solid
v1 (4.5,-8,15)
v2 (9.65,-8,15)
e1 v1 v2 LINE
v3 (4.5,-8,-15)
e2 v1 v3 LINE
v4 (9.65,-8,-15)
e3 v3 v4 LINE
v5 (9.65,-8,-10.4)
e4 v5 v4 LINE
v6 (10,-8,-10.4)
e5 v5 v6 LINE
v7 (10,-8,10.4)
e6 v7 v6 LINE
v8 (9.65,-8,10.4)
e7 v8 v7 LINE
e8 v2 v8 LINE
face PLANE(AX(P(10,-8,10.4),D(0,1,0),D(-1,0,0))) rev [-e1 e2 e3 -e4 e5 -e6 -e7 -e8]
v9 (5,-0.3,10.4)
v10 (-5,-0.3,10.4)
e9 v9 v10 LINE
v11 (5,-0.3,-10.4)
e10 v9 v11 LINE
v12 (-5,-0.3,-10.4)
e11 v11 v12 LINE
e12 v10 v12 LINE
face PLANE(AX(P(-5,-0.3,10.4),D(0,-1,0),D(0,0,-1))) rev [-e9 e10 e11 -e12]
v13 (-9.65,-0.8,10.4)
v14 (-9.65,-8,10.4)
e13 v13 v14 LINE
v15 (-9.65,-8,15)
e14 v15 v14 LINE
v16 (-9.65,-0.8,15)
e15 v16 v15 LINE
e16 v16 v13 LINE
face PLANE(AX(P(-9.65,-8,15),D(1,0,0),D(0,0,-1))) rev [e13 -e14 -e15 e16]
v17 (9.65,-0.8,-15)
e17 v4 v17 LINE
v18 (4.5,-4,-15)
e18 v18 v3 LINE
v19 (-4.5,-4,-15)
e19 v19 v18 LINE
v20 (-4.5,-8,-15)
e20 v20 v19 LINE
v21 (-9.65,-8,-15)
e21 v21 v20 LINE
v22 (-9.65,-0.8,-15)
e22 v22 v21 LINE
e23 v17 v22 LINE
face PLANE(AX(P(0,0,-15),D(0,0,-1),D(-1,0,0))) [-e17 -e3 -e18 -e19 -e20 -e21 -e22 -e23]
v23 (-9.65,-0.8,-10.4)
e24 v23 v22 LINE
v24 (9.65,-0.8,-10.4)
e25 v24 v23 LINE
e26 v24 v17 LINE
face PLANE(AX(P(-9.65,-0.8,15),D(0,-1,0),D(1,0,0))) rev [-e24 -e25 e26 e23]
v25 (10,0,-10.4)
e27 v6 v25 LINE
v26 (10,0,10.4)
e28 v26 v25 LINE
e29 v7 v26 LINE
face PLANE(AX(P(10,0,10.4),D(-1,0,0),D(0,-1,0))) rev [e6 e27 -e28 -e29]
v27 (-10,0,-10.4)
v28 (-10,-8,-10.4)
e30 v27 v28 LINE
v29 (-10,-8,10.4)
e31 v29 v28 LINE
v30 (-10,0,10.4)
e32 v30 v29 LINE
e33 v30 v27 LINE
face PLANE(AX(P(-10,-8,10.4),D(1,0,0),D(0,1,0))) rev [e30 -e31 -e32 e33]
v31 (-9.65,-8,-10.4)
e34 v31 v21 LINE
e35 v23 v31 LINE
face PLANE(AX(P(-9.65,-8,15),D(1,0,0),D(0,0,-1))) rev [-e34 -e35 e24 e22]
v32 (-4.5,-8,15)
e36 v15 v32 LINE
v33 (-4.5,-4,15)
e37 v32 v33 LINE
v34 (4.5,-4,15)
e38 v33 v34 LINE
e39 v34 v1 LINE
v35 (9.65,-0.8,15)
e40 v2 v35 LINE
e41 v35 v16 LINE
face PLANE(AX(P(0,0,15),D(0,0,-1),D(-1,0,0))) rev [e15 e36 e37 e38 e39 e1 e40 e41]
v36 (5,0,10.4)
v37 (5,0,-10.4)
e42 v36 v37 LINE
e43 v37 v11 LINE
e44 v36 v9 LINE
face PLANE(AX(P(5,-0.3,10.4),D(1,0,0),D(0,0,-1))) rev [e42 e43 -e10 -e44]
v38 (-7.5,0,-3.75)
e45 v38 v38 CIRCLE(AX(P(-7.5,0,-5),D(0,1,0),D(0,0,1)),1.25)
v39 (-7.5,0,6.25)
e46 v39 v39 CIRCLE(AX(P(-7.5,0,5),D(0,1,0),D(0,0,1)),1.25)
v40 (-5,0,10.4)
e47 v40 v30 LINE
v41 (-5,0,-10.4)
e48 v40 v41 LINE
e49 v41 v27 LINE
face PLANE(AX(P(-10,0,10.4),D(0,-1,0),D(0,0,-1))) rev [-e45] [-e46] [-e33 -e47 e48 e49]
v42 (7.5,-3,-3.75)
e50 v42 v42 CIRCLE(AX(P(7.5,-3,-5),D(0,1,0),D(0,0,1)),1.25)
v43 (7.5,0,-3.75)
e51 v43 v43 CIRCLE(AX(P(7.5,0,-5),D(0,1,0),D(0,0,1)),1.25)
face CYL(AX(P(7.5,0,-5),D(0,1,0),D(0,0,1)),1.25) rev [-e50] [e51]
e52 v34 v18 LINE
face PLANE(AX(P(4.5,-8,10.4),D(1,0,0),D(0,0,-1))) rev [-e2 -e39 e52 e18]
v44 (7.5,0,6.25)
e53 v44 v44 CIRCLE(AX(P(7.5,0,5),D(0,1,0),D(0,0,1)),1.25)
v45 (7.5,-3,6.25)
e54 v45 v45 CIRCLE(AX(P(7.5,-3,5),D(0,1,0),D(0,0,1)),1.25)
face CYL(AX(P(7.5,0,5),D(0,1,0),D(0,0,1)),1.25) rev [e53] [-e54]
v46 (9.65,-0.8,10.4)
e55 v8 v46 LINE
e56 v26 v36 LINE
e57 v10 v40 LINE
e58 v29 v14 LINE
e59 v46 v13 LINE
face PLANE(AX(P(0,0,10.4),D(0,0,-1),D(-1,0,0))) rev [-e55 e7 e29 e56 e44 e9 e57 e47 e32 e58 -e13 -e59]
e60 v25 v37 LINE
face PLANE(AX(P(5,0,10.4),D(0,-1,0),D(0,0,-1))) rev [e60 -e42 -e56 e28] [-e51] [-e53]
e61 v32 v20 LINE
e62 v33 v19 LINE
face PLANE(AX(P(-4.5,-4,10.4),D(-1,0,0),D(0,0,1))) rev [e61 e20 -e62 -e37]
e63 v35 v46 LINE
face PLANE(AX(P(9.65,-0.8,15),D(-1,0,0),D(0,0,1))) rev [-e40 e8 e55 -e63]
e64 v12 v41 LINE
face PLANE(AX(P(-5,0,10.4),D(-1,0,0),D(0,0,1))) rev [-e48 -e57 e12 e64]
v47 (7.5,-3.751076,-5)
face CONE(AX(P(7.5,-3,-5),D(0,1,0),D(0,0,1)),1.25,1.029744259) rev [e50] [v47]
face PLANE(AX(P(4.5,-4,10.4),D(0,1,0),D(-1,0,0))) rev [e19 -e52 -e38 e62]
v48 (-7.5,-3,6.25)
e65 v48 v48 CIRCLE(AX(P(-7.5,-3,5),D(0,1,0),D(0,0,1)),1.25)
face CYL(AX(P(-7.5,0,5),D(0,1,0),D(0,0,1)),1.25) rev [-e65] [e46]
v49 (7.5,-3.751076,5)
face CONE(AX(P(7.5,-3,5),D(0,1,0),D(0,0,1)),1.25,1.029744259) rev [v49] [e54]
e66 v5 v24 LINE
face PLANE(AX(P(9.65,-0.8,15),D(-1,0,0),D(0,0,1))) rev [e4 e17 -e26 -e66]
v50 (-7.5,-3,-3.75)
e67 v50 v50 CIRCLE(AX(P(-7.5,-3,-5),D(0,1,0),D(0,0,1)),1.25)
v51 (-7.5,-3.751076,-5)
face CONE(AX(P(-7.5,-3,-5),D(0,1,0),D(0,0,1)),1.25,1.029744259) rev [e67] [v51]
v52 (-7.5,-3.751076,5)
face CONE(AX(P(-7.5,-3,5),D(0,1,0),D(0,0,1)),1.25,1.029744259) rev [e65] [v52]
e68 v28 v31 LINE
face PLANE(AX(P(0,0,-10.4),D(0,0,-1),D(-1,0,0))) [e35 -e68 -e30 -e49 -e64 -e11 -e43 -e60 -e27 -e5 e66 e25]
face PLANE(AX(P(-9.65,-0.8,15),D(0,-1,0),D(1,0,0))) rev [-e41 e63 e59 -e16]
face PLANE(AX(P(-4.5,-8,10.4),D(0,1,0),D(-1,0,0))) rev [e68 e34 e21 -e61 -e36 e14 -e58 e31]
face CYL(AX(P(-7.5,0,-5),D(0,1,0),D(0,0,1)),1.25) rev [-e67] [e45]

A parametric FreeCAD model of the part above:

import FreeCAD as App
import Part
import Sketcher
from FreeCAD import Vector
Q = App.Units.Quantity

doc = App.newDocument("Part")
body = doc.addObject("PartDesign::Body", "Body")

# Sketch on XY plane
sketch1 = body.newObject("Sketcher::SketchObject", "Sketch")
sketch1.AttachmentSupport = (doc.getObject("XY_Plane"), [""])
sketch1.MapMode = "FlatFace"
sketch1.addGeometry([
    Part.LineSegment(Vector(-5, 0, 0), Vector(-10, 0, 0)),  # 0
    Part.LineSegment(Vector(-10, 0, 0), Vector(-10, -8, 0)),  # 1
    Part.LineSegment(Vector(-10, -8, 0), Vector(-4.5, -8, 0)),  # 2
    Part.LineSegment(Vector(-4.5, -8, 0), Vector(-4.5, -4, 0)),  # 3
    Part.LineSegment(Vector(-4.5, -4, 0), Vector(4.5, -4, 0)),  # 4
    Part.LineSegment(Vector(4.5, -4, 0), Vector(4.5, -8, 0)),  # 5
    Part.LineSegment(Vector(4.5, -8, 0), Vector(10, -8, 0)),  # 6
    Part.LineSegment(Vector(10, -8, 0), Vector(10, 0, 0)),  # 7
    Part.LineSegment(Vector(10, 0, 0), Vector(5, 0, 0)),  # 8
    Part.LineSegment(Vector(5, 0, 0), Vector(5, -0.3, 0)),  # 9
    Part.LineSegment(Vector(5, -0.3, 0), Vector(-5, -0.3, 0)),  # 10
    Part.LineSegment(Vector(-5, -0.3, 0), Vector(-5, 0, 0)),  # 11
], False)
sketch1.addConstraint([
    Sketcher.Constraint("Coincident", 0, 2, 1, 1),
    Sketcher.Constraint("Coincident", 1, 2, 2, 1),
    Sketcher.Constraint("Coincident", 2, 2, 3, 1),
    Sketcher.Constraint("Coincident", 3, 2, 4, 1),
    Sketcher.Constraint("Coincident", 4, 2, 5, 1),
    Sketcher.Constraint("Coincident", 5, 2, 6, 1),
    Sketcher.Constraint("Coincident", 6, 2, 7, 1),
    Sketcher.Constraint("Coincident", 7, 2, 8, 1),
    Sketcher.Constraint("Coincident", 8, 2, 9, 1),
    Sketcher.Constraint("Coincident", 9, 2, 10, 1),
    Sketcher.Constraint("Coincident", 10, 2, 11, 1),
    Sketcher.Constraint("Coincident", 11, 2, 0, 1),
    Sketcher.Constraint("Horizontal", 0),
    Sketcher.Constraint("Vertical", 1),
    Sketcher.Constraint("Horizontal", 2),
    Sketcher.Constraint("Vertical", 3),
    Sketcher.Constraint("Horizontal", 4),
    Sketcher.Constraint("Vertical", 5),
    Sketcher.Constraint("Horizontal", 6),
    Sketcher.Constraint("Vertical", 7),
    Sketcher.Constraint("Horizontal", 8),
    Sketcher.Constraint("Vertical", 9),
    Sketcher.Constraint("Horizontal", 10),
    Sketcher.Constraint("Vertical", 11),
    Sketcher.Constraint("Symmetric", 0, 2, 7, 2, -1, 1),
    Sketcher.Constraint("Symmetric", 2, 2, 5, 2, -2),
    Sketcher.Constraint("Symmetric", 8, 2, 11, 2, -2),
    Sketcher.Constraint("DistanceX", 0, 2, 0, 1, Q("5 mm")),
    Sketcher.Constraint("DistanceX", 4, 1, 4, 2, Q("9 mm")),
    Sketcher.Constraint("DistanceX", 10, 2, 10, 1, Q("10 mm")),
    Sketcher.Constraint("DistanceY", 1, 2, 1, 1, Q("8 mm")),
    Sketcher.Constraint("DistanceY", 3, 1, 3, 2, Q("4 mm")),
    Sketcher.Constraint("DistanceY", 9, 2, 9, 1, Q("0.3 mm")),
])
pad1 = body.newObject("PartDesign::Pad", "Pad")
pad1.Profile = sketch1
pad1.Length = 20.8
pad1.Midplane = True

# Sketch on XY plane
sketch2 = body.newObject("Sketcher::SketchObject", "Sketch001")
sketch2.AttachmentSupport = (doc.getObject("XY_Plane"), [""])
sketch2.MapMode = "FlatFace"
sketch2.addGeometry([
    Part.LineSegment(Vector(9.7, -0.8, 0), Vector(-9.7, -0.8, 0)),  # 0
    Part.LineSegment(Vector(-9.7, -0.8, 0), Vector(-9.7, -8, 0)),  # 1
    Part.LineSegment(Vector(-9.7, -8, 0), Vector(-4.5, -8, 0)),  # 2
    Part.LineSegment(Vector(-4.5, -8, 0), Vector(-4.5, -4, 0)),  # 3
    Part.LineSegment(Vector(-4.5, -4, 0), Vector(4.5, -4, 0)),  # 4
    Part.LineSegment(Vector(4.5, -4, 0), Vector(4.5, -8, 0)),  # 5
    Part.LineSegment(Vector(4.5, -8, 0), Vector(9.7, -8, 0)),  # 6
    Part.LineSegment(Vector(9.7, -8, 0), Vector(9.7, -0.8, 0)),  # 7
], False)
sketch2.addConstraint([
    Sketcher.Constraint("Coincident", 0, 2, 1, 1),
    Sketcher.Constraint("Coincident", 1, 2, 2, 1),
    Sketcher.Constraint("Coincident", 2, 2, 3, 1),
    Sketcher.Constraint("Coincident", 3, 2, 4, 1),
    Sketcher.Constraint("Coincident", 4, 2, 5, 1),
    Sketcher.Constraint("Coincident", 5, 2, 6, 1),
    Sketcher.Constraint("Coincident", 6, 2, 7, 1),
    Sketcher.Constraint("Coincident", 7, 2, 0, 1),
    Sketcher.Constraint("Horizontal", 0),
    Sketcher.Constraint("Vertical", 1),
    Sketcher.Constraint("Horizontal", 2),
    Sketcher.Constraint("Vertical", 3),
    Sketcher.Constraint("Horizontal", 4),
    Sketcher.Constraint("Vertical", 5),
    Sketcher.Constraint("Horizontal", 6),
    Sketcher.Constraint("Vertical", 7),
    Sketcher.Constraint("Symmetric", 2, 2, 5, 2, -2),
    Sketcher.Constraint("Equal", 2, 6),
    Sketcher.Constraint("DistanceX", 4, 1, 4, 2, Q("9 mm")),
    Sketcher.Constraint("DistanceY", 3, 1, 3, 2, Q("4 mm")),
    Sketcher.Constraint("DistanceX", 0, 2, 0, 1, Q("19.3 mm")),
    Sketcher.Constraint("DistanceY", 1, 2, 1, 1, Q("7.2 mm")),
    Sketcher.Constraint("DistanceY", 1, 2, -1, 1, Q("8 mm")),
])
pad2 = body.newObject("PartDesign::Pad", "Pad001")
pad2.Profile = sketch2
pad2.Length = 30
pad2.Midplane = True

# Sketch on XZ plane
sketch3 = body.newObject("Sketcher::SketchObject", "Sketch002")
sketch3.AttachmentSupport = (doc.getObject("XZ_Plane"), [""])
sketch3.MapMode = "FlatFace"
sketch3.addGeometry([
    Part.Circle(Vector(7.5, -5, 0), Vector(0, 0, 1), 1.2),
    Part.Circle(Vector(7.5, 5, 0), Vector(0, 0, 1), 1.2),
    Part.Circle(Vector(-7.5, -5, 0), Vector(0, 0, 1), 1.2),
    Part.Circle(Vector(-7.5, 5, 0), Vector(0, 0, 1), 1.2),
], False)
sketch3.addConstraint([
    Sketcher.Constraint("Equal", 0, 1),
    Sketcher.Constraint("Equal", 1, 2),
    Sketcher.Constraint("Equal", 2, 3),
    Sketcher.Constraint("Symmetric", 1, 3, 2, 3, -1, 1),
    Sketcher.Constraint("Symmetric", 0, 3, 3, 3, -1, 1),
    Sketcher.Constraint("Symmetric", 0, 3, 2, 3, -2),
    Sketcher.Constraint("Diameter", 0, Q("2.5 mm")),
    Sketcher.Constraint("DistanceY", 0, 3, -1, 1, Q("5 mm")),
    Sketcher.Constraint("DistanceX", 2, 3, 0, 3, Q("15 mm")),
])
doc.recompute()
hole = body.newObject("PartDesign::Hole", "Hole")
hole.Profile = sketch3
hole.ThreadType = "None"
hole.Diameter = 2.5
hole.DepthType = "Dimension"
hole.Depth = 3
hole.DrillPoint = "Angled"
hole.DrillPointAngle = 118
hole.Reversed = True

doc.recompute()
